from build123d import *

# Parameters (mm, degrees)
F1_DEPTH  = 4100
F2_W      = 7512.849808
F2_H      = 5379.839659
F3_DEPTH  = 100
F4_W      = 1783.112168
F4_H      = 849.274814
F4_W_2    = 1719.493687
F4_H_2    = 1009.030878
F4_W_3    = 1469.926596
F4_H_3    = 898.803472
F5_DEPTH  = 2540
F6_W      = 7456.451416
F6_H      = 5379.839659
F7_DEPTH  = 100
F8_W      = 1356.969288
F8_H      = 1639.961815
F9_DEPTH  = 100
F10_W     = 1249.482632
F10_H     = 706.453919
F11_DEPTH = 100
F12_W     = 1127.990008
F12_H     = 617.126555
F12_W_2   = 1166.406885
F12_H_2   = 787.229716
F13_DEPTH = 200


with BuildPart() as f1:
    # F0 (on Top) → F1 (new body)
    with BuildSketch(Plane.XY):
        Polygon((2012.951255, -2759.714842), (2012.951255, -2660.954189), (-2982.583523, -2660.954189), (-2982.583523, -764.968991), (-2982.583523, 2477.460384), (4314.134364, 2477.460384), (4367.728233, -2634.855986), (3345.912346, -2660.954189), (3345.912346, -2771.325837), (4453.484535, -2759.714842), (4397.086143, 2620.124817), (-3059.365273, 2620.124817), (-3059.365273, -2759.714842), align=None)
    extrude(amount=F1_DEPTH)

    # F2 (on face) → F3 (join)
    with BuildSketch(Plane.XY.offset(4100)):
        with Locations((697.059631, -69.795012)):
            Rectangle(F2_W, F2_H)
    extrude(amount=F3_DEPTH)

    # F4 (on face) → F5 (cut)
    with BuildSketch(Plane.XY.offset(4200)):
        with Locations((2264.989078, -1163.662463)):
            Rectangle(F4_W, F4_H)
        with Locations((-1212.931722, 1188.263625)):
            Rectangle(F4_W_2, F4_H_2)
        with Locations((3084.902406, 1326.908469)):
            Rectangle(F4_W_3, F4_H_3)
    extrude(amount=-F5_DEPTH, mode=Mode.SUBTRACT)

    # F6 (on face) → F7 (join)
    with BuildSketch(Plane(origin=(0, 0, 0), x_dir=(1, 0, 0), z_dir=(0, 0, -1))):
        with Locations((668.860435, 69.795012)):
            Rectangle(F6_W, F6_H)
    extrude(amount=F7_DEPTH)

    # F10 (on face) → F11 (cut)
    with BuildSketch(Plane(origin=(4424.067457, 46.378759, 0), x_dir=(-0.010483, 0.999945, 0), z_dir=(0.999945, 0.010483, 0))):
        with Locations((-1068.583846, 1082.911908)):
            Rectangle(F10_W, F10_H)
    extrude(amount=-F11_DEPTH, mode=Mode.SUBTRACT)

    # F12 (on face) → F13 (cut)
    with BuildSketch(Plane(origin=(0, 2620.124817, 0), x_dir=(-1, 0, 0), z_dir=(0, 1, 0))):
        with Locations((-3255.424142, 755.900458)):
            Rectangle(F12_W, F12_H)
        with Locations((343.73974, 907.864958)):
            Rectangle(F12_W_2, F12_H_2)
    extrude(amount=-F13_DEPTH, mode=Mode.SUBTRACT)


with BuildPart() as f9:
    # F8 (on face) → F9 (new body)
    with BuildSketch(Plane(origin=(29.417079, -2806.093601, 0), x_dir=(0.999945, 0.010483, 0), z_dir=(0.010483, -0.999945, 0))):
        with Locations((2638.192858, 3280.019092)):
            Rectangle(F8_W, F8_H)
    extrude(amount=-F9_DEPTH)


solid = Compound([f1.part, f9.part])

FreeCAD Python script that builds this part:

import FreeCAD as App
import Part
import Sketcher

V = App.Vector

doc = App.newDocument("Part")
params = doc.addObject("Spreadsheet::Sheet", "Params")
for row, (alias, value) in enumerate([
    ("pad1_length", "4100 mm"),
    ("pad2_length", "100 mm"),
    ("pocket1_length", "2540 mm"),
    ("pad3_length", "100 mm"),
    ("pocket2_length", "100 mm"),
    ("pocket3_length", "200 mm"),
    ("pad4_length", "100 mm"),
], start=1):
    params.set(f"A{row}", alias)
    params.set(f"B{row}", "=" + value)
    params.setAlias(f"B{row}", alias)

body = doc.addObject("PartDesign::Body", "Body")

# Sketch on XY plane
sketch1 = body.newObject("Sketcher::SketchObject", "Sketch")
sketch1.AttachmentSupport = (doc.getObject("XY_Plane"), [""])
sketch1.MapMode = "FlatFace"
sketch1.addGeometry([
    Part.LineSegment(V(2012.951255, -2759.714842, 0), V(2012.951255, -2660.954189, 0)),  # 0
    Part.LineSegment(V(2012.951255, -2660.954189, 0), V(-2982.583523, -2660.954189, 0)),  # 1
    Part.LineSegment(V(-2982.583523, -2660.954189, 0), V(-2982.583523, 2477.460384, 0)),  # 2
    Part.LineSegment(V(-2982.583523, 2477.460384, 0), V(4314.134364, 2477.460384, 0)),  # 3
    Part.LineSegment(V(4314.134364, 2477.460384, 0), V(4367.728233, -2634.855986, 0)),  # 4
    Part.LineSegment(V(4367.728233, -2634.855986, 0), V(3345.912346, -2660.954189, 0)),  # 5
    Part.LineSegment(V(3345.912346, -2660.954189, 0), V(3345.912346, -2771.325837, 0)),  # 6
    Part.LineSegment(V(3345.912346, -2771.325837, 0), V(4453.484535, -2759.714842, 0)),  # 7
    Part.LineSegment(V(4453.484535, -2759.714842, 0), V(4397.086143, 2620.124817, 0)),  # 8
    Part.LineSegment(V(4397.086143, 2620.124817, 0), V(-3059.365273, 2620.124817, 0)),  # 9
    Part.LineSegment(V(-3059.365273, 2620.124817, 0), V(-3059.365273, -2759.714842, 0)),  # 10
    Part.LineSegment(V(-3059.365273, -2759.714842, 0), V(2012.951255, -2759.714842, 0)),  # 11
], False)
sketch1.addConstraint([
    Sketcher.Constraint("Coincident", 0, 2, 1, 1),
    Sketcher.Constraint("Coincident", 1, 2, 2, 1),
    Sketcher.Constraint("Coincident", 2, 2, 3, 1),
    Sketcher.Constraint("Coincident", 3, 2, 4, 1),
    Sketcher.Constraint("Coincident", 4, 2, 5, 1),
    Sketcher.Constraint("Coincident", 5, 2, 6, 1),
    Sketcher.Constraint("Coincident", 6, 2, 7, 1),
    Sketcher.Constraint("Coincident", 7, 2, 8, 1),
    Sketcher.Constraint("Coincident", 8, 2, 9, 1),
    Sketcher.Constraint("Coincident", 9, 2, 10, 1),
    Sketcher.Constraint("Coincident", 10, 2, 11, 1),
    Sketcher.Constraint("Coincident", 11, 2, 0, 1),
    Sketcher.Constraint("Vertical", 0),
    Sketcher.Constraint("Horizontal", 1),
    Sketcher.Constraint("Vertical", 2),
    Sketcher.Constraint("Horizontal", 3),
    Sketcher.Constraint("Vertical", 6),
    Sketcher.Constraint("Horizontal", 9),
    Sketcher.Constraint("Vertical", 10),
    Sketcher.Constraint("Horizontal", 11),
    Sketcher.Constraint("Perpendicular", 4, 7),
    Sketcher.Constraint("Perpendicular", 7, 8),
    Sketcher.Constraint("Horizontal", 1, 2, 5, 2),
    Sketcher.Constraint("Horizontal", 7, 2, 10, 2),
    Sketcher.Constraint("DistanceY", 10, 2, 10, 1, 5379.839659),
    Sketcher.Constraint("DistanceX", 4, 2, 7, 2, 85.756302),
    Sketcher.Constraint("Distance", 5, 1022.14912),
    Sketcher.Constraint("Distance", 7, 1107.633048),
    Sketcher.Constraint("Distance", 8, 5380.135271),
    Sketcher.Constraint("DistanceX", 1, 2, 1, 1, 4995.534778),
    Sketcher.Constraint("DistanceX", 3, 1, 3, 2, 7296.717887),
    Sketcher.Constraint("DistanceX", 9, 2, 9, 1, 7456.451416),
    Sketcher.Constraint("DistanceX", 11, 1, 11, 2, 5072.316528),
    Sketcher.Constraint("DistanceY", 0, 1, 0, 2, 98.760653),
    Sketcher.Constraint("DistanceY", 0, 2, -1, 1, 2660.954189),
    Sketcher.Constraint("DistanceX", -1, 1, 0, 2, 2012.951255),
])
pad1 = body.newObject("PartDesign::Pad", "Pad")
pad1.Profile = sketch1
pad1.setExpression("Length", "Params.pad1_length")

# Sketch on XY plane
sketch2 = body.newObject("Sketcher::SketchObject", "Sketch001")
sketch2.AttachmentSupport = (doc.getObject("XY_Plane"), [""])
sketch2.MapMode = "FlatFace"
sketch2.AttachmentOffset = App.Placement(V(0, 0, 4100), App.Rotation())
sketch2.addGeometry([
    Part.LineSegment(V(-3059, 2620, 0), V(-3059, -2760, 0)),
    Part.LineSegment(V(-3059, -2760, 0), V(4453, -2760, 0)),
    Part.LineSegment(V(4453, -2760, 0), V(4453, 2620, 0)),
    Part.LineSegment(V(4453, 2620, 0), V(-3059, 2620, 0)),
], False)
sketch2.addConstraint([
    Sketcher.Constraint("Coincident", 0, 2, 1, 1),
    Sketcher.Constraint("Coincident", 1, 2, 2, 1),
    Sketcher.Constraint("Coincident", 2, 2, 3, 1),
    Sketcher.Constraint("Coincident", 3, 2, 0, 1),
    Sketcher.Constraint("Vertical", 0),
    Sketcher.Constraint("Horizontal", 1),
    Sketcher.Constraint("Vertical", 2),
    Sketcher.Constraint("Horizontal", 3),
    Sketcher.Constraint("DistanceY", 0, 2, 0, 1, 5379.839659),
    Sketcher.Constraint("DistanceX", 1, 1, 1, 2, 7512.849808),
    Sketcher.Constraint("DistanceY", 0, 2, -1, 1, 2759.714842),
    Sketcher.Constraint("DistanceX", 0, 2, -1, 1, 3059.365273),
])
pad2 = body.newObject("PartDesign::Pad", "Pad001")
pad2.Profile = sketch2
pad2.setExpression("Length", "Params.pad2_length")

# Sketch on XY plane
sketch3 = body.newObject("Sketcher::SketchObject", "Sketch002")
sketch3.AttachmentSupport = (doc.getObject("XY_Plane"), [""])
sketch3.MapMode = "FlatFace"
sketch3.AttachmentOffset = App.Placement(V(0, 0, 4200), App.Rotation())
sketch3.addGeometry([
    Part.LineSegment(V(1373, -739, 0), V(1373, -1588, 0)),  # 0
    Part.LineSegment(V(1373, -1588, 0), V(3157, -1588, 0)),  # 1
    Part.LineSegment(V(3157, -1588, 0), V(3157, -739, 0)),  # 2
    Part.LineSegment(V(3157, -739, 0), V(1373, -739, 0)),  # 3
    Part.LineSegment(V(-2073, 1693, 0), V(-2073, 684, 0)),  # 4
    Part.LineSegment(V(-2073, 684, 0), V(-353, 684, 0)),  # 5
    Part.LineSegment(V(-353, 684, 0), V(-353, 1693, 0)),  # 6
    Part.LineSegment(V(-353, 1693, 0), V(-2073, 1693, 0)),  # 7
    Part.LineSegment(V(2350, 1776, 0), V(2350, 878, 0)),  # 8
    Part.LineSegment(V(2350, 878, 0), V(3820, 878, 0)),  # 9
    Part.LineSegment(V(3820, 878, 0), V(3820, 1776, 0)),  # 10
    Part.LineSegment(V(3820, 1776, 0), V(2350, 1776, 0)),  # 11
], False)
sketch3.addConstraint([
    Sketcher.Constraint("Coincident", 0, 2, 1, 1),
    Sketcher.Constraint("Coincident", 1, 2, 2, 1),
    Sketcher.Constraint("Coincident", 2, 2, 3, 1),
    Sketcher.Constraint("Coincident", 3, 2, 0, 1),
    Sketcher.Constraint("Coincident", 4, 2, 5, 1),
    Sketcher.Constraint("Coincident", 5, 2, 6, 1),
    Sketcher.Constraint("Coincident", 6, 2, 7, 1),
    Sketcher.Constraint("Coincident", 7, 2, 4, 1),
    Sketcher.Constraint("Coincident", 8, 2, 9, 1),
    Sketcher.Constraint("Coincident", 9, 2, 10, 1),
    Sketcher.Constraint("Coincident", 10, 2, 11, 1),
    Sketcher.Constraint("Coincident", 11, 2, 8, 1),
    Sketcher.Constraint("Vertical", 0),
    Sketcher.Constraint("Horizontal", 1),
    Sketcher.Constraint("Vertical", 2),
    Sketcher.Constraint("Horizontal", 3),
    Sketcher.Constraint("Vertical", 4),
    Sketcher.Constraint("Horizontal", 5),
    Sketcher.Constraint("Vertical", 6),
    Sketcher.Constraint("Horizontal", 7),
    Sketcher.Constraint("Vertical", 8),
    Sketcher.Constraint("Horizontal", 9),
    Sketcher.Constraint("Vertical", 10),
    Sketcher.Constraint("Horizontal", 11),
    Sketcher.Constraint("DistanceY", 4, 2, 4, 1, 1009.030878),
    Sketcher.Constraint("DistanceY", 8, 2, 8, 1, 898.803472),
    Sketcher.Constraint("DistanceX", 1, 1, 1, 2, 1783.112168),
    Sketcher.Constraint("DistanceX", 5, 1, 5, 2, 1719.493687),
    Sketcher.Constraint("DistanceX", 9, 1, 9, 2, 1469.926596),
    Sketcher.Constraint("DistanceY", 0, 2, 0, 1, 849.274814),
    Sketcher.Constraint("DistanceY", 0, 2, -1, 1, 1588.29987),
    Sketcher.Constraint("DistanceX", -1, 1, 1, 2, 3156.545162),
    Sketcher.Constraint("DistanceX", 5, 2, -1, 1, 353.184879),
    Sketcher.Constraint("DistanceX", -1, 1, 8, 2, 2349.939108),
    Sketcher.Constraint("DistanceY", 3, 2, 4, 2, 1422.773242),
    Sketcher.Constraint("DistanceY", 2, 2, 8, 2, 1616.531789),
])
pocket1 = body.newObject("PartDesign::Pocket", "Pocket")
pocket1.Profile = sketch3
pocket1.setExpression("Length", "Params.pocket1_length")

# Sketch on XY plane
sketch4 = body.newObject("Sketcher::SketchObject", "Sketch003")
sketch4.AttachmentSupport = (doc.getObject("XY_Plane"), [""])
sketch4.MapMode = "FlatFace"
sketch4.addGeometry([
    Part.LineSegment(V(-3059, -2760, 0), V(-3059, 2620, 0)),
    Part.LineSegment(V(-3059, 2620, 0), V(4397, 2620, 0)),
    Part.LineSegment(V(4397, 2620, 0), V(4397, -2760, 0)),
    Part.LineSegment(V(4397, -2760, 0), V(-3059, -2760, 0)),
], False)
sketch4.addConstraint([
    Sketcher.Constraint("Coincident", 0, 2, 1, 1),
    Sketcher.Constraint("Coincident", 1, 2, 2, 1),
    Sketcher.Constraint("Coincident", 2, 2, 3, 1),
    Sketcher.Constraint("Coincident", 3, 2, 0, 1),
    Sketcher.Constraint("Vertical", 0),
    Sketcher.Constraint("Horizontal", 1),
    Sketcher.Constraint("Vertical", 2),
    Sketcher.Constraint("Horizontal", 3),
    Sketcher.Constraint("DistanceY", 0, 1, 0, 2, 5379.839659),
    Sketcher.Constraint("DistanceX", 1, 1, 1, 2, 7456.451416),
    Sketcher.Constraint("DistanceY", 2, 2, -1, 1, 2759.714842),
    Sketcher.Constraint("DistanceX", 0, 2, -1, 1, 3059.365273),
])
pad3 = body.newObject("PartDesign::Pad", "Pad002")
pad3.Profile = sketch4
pad3.setExpression("Length", "Params.pad3_length")
pad3.Reversed = True

# Sketch on an angled plane
sketch5 = body.newObject("Sketcher::SketchObject", "Sketch004")
sketch5.Placement = App.Placement(V(4424.067457, 46.378759, 0), App.Rotation(V(-0.010483001, 0.999945052, 0), V(0, 0, 1), V(0.999945052, 0.010483001, 0), "ZXY"))
sketch5.addGeometry([
    Part.LineSegment(V(-1693, 1436, 0), V(-1693, 730, 0)),
    Part.LineSegment(V(-1693, 730, 0), V(-444, 730, 0)),
    Part.LineSegment(V(-444, 730, 0), V(-444, 1436, 0)),
    Part.LineSegment(V(-444, 1436, 0), V(-1693, 1436, 0)),
], False)
sketch5.addConstraint([
    Sketcher.Constraint("Coincident", 0, 2, 1, 1),
    Sketcher.Constraint("Coincident", 1, 2, 2, 1),
    Sketcher.Constraint("Coincident", 2, 2, 3, 1),
    Sketcher.Constraint("Coincident", 3, 2, 0, 1),
    Sketcher.Constraint("Vertical", 0),
    Sketcher.Constraint("Horizontal", 1),
    Sketcher.Constraint("Vertical", 2),
    Sketcher.Constraint("Horizontal", 3),
    Sketcher.Constraint("DistanceY", 0, 2, 0, 1, 706.453919),
    Sketcher.Constraint("DistanceX", 1, 1, 1, 2, 1249.482632),
    Sketcher.Constraint("DistanceY", -1, 1, 0, 2, 729.684949),
    Sketcher.Constraint("DistanceX", 1, 2, -1, 1, 443.84253),
])
pocket2 = body.newObject("PartDesign::Pocket", "Pocket001")
pocket2.Profile = sketch5
pocket2.setExpression("Length", "Params.pocket2_length")

# Sketch on XZ plane
sketch6 = body.newObject("Sketcher::SketchObject", "Sketch005")
sketch6.AttachmentSupport = (doc.getObject("XZ_Plane"), [""])
sketch6.MapMode = "FlatFace"
sketch6.AttachmentOffset = App.Placement(V(0, 0, -2620.124817), App.Rotation())
sketch6.addGeometry([
    Part.LineSegment(V(3819, 1064, 0), V(3819, 447, 0)),  # 0
    Part.LineSegment(V(3819, 447, 0), V(2691, 447, 0)),  # 1
    Part.LineSegment(V(2691, 447, 0), V(2691, 1064, 0)),  # 2
    Part.LineSegment(V(2691, 1064, 0), V(3819, 1064, 0)),  # 3
    Part.LineSegment(V(239, 1301, 0), V(239, 514, 0)),  # 4
    Part.LineSegment(V(239, 514, 0), V(-927, 514, 0)),  # 5
    Part.LineSegment(V(-927, 514, 0), V(-927, 1301, 0)),  # 6
    Part.LineSegment(V(-927, 1301, 0), V(239, 1301, 0)),  # 7
], False)
sketch6.addConstraint([
    Sketcher.Constraint("Coincident", 0, 2, 1, 1),
    Sketcher.Constraint("Coincident", 1, 2, 2, 1),
    Sketcher.Constraint("Coincident", 2, 2, 3, 1),
    Sketcher.Constraint("Coincident", 3, 2, 0, 1),
    Sketcher.Constraint("Coincident", 4, 2, 5, 1),
    Sketcher.Constraint("Coincident", 5, 2, 6, 1),
    Sketcher.Constraint("Coincident", 6, 2, 7, 1),
    Sketcher.Constraint("Coincident", 7, 2, 4, 1),
    Sketcher.Constraint("Vertical", 0),
    Sketcher.Constraint("Horizontal", 1),
    Sketcher.Constraint("Vertical", 2),
    Sketcher.Constraint("Horizontal", 3),
    Sketcher.Constraint("Vertical", 4),
    Sketcher.Constraint("Horizontal", 5),
    Sketcher.Constraint("Vertical", 6),
    Sketcher.Constraint("Horizontal", 7),
    Sketcher.Constraint("DistanceX", 1, 2, 1, 1, 1127.990008),
    Sketcher.Constraint("DistanceY", -1, 1, 4, 2, 514.2501),
    Sketcher.Constraint("DistanceX", 5, 2, 5, 1, 1166.406885),
    Sketcher.Constraint("DistanceY", 0, 2, 0, 1, 617.126555),
    Sketcher.Constraint("DistanceY", 4, 2, 4, 1, 787.229716),
    Sketcher.Constraint("DistanceY", -1, 1, 0, 2, 447.33718),
    Sketcher.Constraint("DistanceX", 5, 2, 1, 2, 3618.372321),
    Sketcher.Constraint("DistanceX", -1, 1, 0, 2, 3819.419146),
])
pocket3 = body.newObject("PartDesign::Pocket", "Pocket002")
pocket3.Profile = sketch6
pocket3.setExpression("Length", "Params.pocket3_length")
pocket3.Reversed = True
body2 = doc.addObject("PartDesign::Body", "Body001")

# Sketch on an angled plane
sketch7 = body2.newObject("Sketcher::SketchObject", "Sketch006")
sketch7.Placement = App.Placement(V(29.417079, -2806.093601, 0), App.Rotation(V(0.999945052, 0.010483001, 0), V(0, 0, 1), V(0.010483001, -0.999945052, 0), "ZXY"))
sketch7.addGeometry([
    Part.LineSegment(V(1960, 4100, 0), V(1960, 2460, 0)),
    Part.LineSegment(V(1960, 2460, 0), V(3317, 2460, 0)),
    Part.LineSegment(V(3317, 2460, 0), V(3317, 4100, 0)),
    Part.LineSegment(V(3317, 4100, 0), V(1960, 4100, 0)),
], False)
sketch7.addConstraint([
    Sketcher.Constraint("Coincident", 0, 2, 1, 1),
    Sketcher.Constraint("Coincident", 1, 2, 2, 1),
    Sketcher.Constraint("Coincident", 2, 2, 3, 1),
    Sketcher.Constraint("Coincident", 3, 2, 0, 1),
    Sketcher.Constraint("Vertical", 0),
    Sketcher.Constraint("Horizontal", 1),
    Sketcher.Constraint("Vertical", 2),
    Sketcher.Constraint("Horizontal", 3),
    Sketcher.Constraint("DistanceX", 1, 1, 1, 2, 1356.969288),
    Sketcher.Constraint("DistanceY", 0, 2, 0, 1, 1639.961816),
    Sketcher.Constraint("DistanceX", -1, 1, 0, 2, 1959.708215),
    Sketcher.Constraint("DistanceY", -1, 1, 0, 2, 2460.038186),
])
pad4 = body2.newObject("PartDesign::Pad", "Pad003")
pad4.Profile = sketch7
pad4.setExpression("Length", "Params.pad4_length")
pad4.Reversed = True

doc.recompute()
